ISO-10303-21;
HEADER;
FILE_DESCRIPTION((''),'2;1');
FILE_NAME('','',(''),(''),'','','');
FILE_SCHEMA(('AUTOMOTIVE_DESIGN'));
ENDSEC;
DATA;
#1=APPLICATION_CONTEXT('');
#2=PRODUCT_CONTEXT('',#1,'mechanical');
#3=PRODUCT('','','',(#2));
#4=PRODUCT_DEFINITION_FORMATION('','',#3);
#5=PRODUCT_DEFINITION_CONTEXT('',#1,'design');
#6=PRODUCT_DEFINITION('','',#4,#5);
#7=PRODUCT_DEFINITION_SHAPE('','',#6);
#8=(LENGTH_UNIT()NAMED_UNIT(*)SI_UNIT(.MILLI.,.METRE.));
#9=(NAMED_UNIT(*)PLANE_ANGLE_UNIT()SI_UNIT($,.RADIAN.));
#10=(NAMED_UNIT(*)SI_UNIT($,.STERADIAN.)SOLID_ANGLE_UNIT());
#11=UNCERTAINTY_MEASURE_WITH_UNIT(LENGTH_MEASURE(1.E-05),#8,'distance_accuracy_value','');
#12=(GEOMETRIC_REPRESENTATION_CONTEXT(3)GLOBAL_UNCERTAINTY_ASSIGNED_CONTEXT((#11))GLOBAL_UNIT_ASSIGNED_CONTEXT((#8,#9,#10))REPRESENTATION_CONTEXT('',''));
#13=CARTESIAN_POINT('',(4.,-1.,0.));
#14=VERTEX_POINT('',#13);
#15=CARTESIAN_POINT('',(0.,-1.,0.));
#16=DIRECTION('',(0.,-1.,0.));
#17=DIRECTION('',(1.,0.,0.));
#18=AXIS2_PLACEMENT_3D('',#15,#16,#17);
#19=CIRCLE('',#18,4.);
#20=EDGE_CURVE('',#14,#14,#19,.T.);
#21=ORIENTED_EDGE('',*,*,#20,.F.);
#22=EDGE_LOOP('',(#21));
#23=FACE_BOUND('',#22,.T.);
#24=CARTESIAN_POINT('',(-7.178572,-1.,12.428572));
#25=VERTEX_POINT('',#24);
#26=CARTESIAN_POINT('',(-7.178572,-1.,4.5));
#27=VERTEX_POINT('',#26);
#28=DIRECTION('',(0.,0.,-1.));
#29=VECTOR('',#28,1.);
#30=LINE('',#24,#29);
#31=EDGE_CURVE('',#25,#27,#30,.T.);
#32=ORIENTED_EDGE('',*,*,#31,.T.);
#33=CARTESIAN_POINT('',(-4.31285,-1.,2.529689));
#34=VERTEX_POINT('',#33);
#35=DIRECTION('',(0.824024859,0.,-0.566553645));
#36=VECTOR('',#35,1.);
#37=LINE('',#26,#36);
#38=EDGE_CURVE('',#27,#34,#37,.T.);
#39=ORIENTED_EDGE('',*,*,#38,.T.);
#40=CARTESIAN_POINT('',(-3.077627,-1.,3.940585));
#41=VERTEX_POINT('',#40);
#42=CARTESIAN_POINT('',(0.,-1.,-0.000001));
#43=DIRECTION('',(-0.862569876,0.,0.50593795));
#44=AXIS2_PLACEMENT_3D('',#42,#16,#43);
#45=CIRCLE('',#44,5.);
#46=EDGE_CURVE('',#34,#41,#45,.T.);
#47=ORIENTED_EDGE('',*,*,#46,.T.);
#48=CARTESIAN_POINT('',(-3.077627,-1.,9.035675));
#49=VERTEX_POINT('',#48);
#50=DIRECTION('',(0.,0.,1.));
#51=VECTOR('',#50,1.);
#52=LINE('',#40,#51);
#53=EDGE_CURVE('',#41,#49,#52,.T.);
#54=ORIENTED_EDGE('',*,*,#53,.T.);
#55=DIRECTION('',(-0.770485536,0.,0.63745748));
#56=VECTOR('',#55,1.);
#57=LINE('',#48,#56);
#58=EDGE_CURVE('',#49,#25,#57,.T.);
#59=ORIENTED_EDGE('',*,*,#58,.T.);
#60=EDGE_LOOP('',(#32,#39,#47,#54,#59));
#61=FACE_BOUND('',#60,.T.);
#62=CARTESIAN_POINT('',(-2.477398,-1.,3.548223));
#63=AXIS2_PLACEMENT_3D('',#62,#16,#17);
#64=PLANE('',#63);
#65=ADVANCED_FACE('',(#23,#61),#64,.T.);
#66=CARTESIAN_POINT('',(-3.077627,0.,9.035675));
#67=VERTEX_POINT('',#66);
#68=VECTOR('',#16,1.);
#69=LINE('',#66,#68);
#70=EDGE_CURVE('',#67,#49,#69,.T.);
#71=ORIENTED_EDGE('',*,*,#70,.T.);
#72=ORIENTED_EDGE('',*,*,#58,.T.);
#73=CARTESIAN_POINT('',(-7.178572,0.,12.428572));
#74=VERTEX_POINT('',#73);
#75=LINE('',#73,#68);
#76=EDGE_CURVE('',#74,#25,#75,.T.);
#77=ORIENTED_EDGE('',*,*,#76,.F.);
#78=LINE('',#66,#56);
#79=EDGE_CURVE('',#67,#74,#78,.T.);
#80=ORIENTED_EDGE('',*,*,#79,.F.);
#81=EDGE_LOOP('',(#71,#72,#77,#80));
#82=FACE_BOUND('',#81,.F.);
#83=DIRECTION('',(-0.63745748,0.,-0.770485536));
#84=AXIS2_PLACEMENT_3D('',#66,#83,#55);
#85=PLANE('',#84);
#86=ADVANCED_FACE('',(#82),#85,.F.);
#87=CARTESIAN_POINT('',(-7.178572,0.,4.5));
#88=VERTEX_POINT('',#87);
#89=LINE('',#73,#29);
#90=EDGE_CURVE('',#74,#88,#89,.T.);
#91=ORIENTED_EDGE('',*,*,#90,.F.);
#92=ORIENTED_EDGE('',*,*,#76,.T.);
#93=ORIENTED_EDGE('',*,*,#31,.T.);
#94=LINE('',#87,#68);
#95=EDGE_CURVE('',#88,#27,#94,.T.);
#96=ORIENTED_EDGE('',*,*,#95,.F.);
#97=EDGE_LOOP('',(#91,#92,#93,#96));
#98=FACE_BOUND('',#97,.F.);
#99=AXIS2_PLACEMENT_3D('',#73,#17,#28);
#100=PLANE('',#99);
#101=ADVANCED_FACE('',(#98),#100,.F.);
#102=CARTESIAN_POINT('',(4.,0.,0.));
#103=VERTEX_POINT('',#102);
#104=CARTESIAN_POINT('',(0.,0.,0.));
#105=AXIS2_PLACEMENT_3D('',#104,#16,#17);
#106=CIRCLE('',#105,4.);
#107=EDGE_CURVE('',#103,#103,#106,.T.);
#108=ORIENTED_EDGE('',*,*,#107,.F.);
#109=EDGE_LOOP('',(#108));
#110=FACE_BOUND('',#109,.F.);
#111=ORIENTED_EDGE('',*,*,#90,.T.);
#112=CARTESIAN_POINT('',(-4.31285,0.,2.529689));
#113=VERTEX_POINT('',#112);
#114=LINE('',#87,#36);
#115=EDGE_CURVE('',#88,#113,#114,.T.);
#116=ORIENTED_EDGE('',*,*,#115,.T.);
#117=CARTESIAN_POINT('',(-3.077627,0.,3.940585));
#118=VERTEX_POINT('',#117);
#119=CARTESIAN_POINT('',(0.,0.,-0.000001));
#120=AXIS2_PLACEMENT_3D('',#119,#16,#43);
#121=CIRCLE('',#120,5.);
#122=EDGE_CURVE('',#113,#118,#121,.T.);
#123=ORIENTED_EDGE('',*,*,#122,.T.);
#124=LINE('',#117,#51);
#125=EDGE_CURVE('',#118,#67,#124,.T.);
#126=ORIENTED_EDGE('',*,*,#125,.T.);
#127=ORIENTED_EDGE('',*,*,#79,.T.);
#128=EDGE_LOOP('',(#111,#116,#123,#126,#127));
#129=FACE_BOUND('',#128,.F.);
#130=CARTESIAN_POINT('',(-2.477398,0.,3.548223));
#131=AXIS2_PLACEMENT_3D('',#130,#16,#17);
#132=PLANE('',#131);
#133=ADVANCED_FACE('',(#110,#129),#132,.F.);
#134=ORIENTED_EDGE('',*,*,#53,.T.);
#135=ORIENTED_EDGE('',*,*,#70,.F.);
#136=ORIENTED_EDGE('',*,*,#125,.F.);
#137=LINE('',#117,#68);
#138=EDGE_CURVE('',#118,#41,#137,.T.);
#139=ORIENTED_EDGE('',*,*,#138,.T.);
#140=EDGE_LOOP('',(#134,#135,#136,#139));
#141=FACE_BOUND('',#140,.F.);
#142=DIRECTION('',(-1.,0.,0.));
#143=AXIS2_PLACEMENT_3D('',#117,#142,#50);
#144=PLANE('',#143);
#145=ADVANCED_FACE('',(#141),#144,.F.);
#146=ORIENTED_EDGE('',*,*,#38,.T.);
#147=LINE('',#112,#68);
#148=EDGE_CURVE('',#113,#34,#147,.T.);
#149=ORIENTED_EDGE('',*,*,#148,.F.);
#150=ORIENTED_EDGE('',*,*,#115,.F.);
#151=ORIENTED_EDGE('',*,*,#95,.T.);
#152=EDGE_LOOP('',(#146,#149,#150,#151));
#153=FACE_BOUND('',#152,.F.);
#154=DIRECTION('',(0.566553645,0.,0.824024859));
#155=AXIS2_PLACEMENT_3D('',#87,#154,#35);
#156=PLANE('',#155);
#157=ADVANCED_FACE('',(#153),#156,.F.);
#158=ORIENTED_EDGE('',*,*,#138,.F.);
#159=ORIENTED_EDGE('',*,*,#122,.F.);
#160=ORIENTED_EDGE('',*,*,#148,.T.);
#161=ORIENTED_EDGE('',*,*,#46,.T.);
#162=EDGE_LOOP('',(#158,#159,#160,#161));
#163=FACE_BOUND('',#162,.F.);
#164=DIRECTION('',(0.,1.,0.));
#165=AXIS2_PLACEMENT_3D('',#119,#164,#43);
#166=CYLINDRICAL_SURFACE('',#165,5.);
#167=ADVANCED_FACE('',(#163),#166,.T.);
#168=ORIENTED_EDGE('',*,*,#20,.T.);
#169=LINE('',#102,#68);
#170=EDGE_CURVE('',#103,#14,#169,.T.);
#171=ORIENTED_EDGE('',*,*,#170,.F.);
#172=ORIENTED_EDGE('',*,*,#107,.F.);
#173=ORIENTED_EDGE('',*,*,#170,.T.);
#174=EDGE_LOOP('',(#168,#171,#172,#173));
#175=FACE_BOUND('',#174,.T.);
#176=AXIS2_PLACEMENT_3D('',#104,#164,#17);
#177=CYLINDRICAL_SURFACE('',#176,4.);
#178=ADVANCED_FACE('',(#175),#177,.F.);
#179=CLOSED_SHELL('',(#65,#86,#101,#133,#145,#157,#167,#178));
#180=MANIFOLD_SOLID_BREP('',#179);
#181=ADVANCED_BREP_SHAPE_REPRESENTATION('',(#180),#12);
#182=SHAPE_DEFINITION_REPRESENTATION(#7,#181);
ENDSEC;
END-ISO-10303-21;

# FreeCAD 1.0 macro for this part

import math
import FreeCAD as App
import Part
import Sketcher

V = App.Vector

doc = App.newDocument("Part")
body = doc.addObject("PartDesign::Body", "Body")

sketch1 = body.newObject("Sketcher::SketchObject", "Sketch")
sketch1.AttachmentSupport = (doc.getObject("XZ_Plane"), [""])
sketch1.MapMode = "FlatFace"
sketch1.addGeometry(Part.LineSegment(V(-7.178572, 4.5, 0), V(-4.31285, 2.529689, 0)), False)
sketch1.addGeometry(Part.ArcOfCircle(Part.Circle(V(0, -0.000001, 0), V(0, 0, 1), 5), math.radians(149.606365), math.radians(487.990099)), False)
sketch1.addGeometry(Part.LineSegment(V(-3.077627, 3.940585, 0), V(-3.077627, 9.035675, 0)), False)
sketch1.addGeometry(Part.LineSegment(V(-3.077627, 9.035675, 0), V(-7.178572, 12.428572, 0)), False)
sketch1.addGeometry(Part.LineSegment(V(-7.178572, 12.428572, 0), V(-7.178572, 4.5, 0)), False)
sketch1.addGeometry(Part.Circle(V(0, 0, 0), V(0, 0, 1), 4), False)
sketch1.addConstraint(Sketcher.Constraint("Coincident", 0, 2, 1, 1))
sketch1.addConstraint(Sketcher.Constraint("Coincident", 1, 2, 2, 1))
sketch1.addConstraint(Sketcher.Constraint("Coincident", 2, 2, 3, 1))
sketch1.addConstraint(Sketcher.Constraint("Coincident", 3, 2, 4, 1))
sketch1.addConstraint(Sketcher.Constraint("Coincident", 4, 2, 0, 1))
sketch1.addConstraint(Sketcher.Constraint("Vertical", 2))
sketch1.addConstraint(Sketcher.Constraint("Vertical", 4))
sketch1.addConstraint(Sketcher.Constraint("Coincident", 1, 3, -1, 1))
sketch1.addConstraint(Sketcher.Constraint("Coincident", 5, 3, -1, 1))
sketch1.addConstraint(Sketcher.Constraint("Diameter", 5, 8.0))
sketch1.addConstraint(Sketcher.Constraint("Radius", 1, 5.0))
sketch1.addConstraint(Sketcher.Constraint("DistanceY", -1, 1, 4, 2, 4.5))
sketch1.addConstraint(Sketcher.Constraint("DistanceY", 2, 1, 2, 2, 5.09509))
sketch1.addConstraint(Sketcher.Constraint("DistanceY", 4, 2, 4, 1, 7.928572))
sketch1.addConstraint(Sketcher.Constraint("DistanceX", 0, 2, -1, 1, 4.31285))
sketch1.addConstraint(Sketcher.Constraint("DistanceX", 3, 2, 0, 2, 2.865722))
sketch1.addConstraint(Sketcher.Constraint("Distance", 3, 5.322546))
pad1 = body.newObject("PartDesign::Pad", "Pad")
pad1.Profile = sketch1
pad1.Length = 1

doc.recompute()
